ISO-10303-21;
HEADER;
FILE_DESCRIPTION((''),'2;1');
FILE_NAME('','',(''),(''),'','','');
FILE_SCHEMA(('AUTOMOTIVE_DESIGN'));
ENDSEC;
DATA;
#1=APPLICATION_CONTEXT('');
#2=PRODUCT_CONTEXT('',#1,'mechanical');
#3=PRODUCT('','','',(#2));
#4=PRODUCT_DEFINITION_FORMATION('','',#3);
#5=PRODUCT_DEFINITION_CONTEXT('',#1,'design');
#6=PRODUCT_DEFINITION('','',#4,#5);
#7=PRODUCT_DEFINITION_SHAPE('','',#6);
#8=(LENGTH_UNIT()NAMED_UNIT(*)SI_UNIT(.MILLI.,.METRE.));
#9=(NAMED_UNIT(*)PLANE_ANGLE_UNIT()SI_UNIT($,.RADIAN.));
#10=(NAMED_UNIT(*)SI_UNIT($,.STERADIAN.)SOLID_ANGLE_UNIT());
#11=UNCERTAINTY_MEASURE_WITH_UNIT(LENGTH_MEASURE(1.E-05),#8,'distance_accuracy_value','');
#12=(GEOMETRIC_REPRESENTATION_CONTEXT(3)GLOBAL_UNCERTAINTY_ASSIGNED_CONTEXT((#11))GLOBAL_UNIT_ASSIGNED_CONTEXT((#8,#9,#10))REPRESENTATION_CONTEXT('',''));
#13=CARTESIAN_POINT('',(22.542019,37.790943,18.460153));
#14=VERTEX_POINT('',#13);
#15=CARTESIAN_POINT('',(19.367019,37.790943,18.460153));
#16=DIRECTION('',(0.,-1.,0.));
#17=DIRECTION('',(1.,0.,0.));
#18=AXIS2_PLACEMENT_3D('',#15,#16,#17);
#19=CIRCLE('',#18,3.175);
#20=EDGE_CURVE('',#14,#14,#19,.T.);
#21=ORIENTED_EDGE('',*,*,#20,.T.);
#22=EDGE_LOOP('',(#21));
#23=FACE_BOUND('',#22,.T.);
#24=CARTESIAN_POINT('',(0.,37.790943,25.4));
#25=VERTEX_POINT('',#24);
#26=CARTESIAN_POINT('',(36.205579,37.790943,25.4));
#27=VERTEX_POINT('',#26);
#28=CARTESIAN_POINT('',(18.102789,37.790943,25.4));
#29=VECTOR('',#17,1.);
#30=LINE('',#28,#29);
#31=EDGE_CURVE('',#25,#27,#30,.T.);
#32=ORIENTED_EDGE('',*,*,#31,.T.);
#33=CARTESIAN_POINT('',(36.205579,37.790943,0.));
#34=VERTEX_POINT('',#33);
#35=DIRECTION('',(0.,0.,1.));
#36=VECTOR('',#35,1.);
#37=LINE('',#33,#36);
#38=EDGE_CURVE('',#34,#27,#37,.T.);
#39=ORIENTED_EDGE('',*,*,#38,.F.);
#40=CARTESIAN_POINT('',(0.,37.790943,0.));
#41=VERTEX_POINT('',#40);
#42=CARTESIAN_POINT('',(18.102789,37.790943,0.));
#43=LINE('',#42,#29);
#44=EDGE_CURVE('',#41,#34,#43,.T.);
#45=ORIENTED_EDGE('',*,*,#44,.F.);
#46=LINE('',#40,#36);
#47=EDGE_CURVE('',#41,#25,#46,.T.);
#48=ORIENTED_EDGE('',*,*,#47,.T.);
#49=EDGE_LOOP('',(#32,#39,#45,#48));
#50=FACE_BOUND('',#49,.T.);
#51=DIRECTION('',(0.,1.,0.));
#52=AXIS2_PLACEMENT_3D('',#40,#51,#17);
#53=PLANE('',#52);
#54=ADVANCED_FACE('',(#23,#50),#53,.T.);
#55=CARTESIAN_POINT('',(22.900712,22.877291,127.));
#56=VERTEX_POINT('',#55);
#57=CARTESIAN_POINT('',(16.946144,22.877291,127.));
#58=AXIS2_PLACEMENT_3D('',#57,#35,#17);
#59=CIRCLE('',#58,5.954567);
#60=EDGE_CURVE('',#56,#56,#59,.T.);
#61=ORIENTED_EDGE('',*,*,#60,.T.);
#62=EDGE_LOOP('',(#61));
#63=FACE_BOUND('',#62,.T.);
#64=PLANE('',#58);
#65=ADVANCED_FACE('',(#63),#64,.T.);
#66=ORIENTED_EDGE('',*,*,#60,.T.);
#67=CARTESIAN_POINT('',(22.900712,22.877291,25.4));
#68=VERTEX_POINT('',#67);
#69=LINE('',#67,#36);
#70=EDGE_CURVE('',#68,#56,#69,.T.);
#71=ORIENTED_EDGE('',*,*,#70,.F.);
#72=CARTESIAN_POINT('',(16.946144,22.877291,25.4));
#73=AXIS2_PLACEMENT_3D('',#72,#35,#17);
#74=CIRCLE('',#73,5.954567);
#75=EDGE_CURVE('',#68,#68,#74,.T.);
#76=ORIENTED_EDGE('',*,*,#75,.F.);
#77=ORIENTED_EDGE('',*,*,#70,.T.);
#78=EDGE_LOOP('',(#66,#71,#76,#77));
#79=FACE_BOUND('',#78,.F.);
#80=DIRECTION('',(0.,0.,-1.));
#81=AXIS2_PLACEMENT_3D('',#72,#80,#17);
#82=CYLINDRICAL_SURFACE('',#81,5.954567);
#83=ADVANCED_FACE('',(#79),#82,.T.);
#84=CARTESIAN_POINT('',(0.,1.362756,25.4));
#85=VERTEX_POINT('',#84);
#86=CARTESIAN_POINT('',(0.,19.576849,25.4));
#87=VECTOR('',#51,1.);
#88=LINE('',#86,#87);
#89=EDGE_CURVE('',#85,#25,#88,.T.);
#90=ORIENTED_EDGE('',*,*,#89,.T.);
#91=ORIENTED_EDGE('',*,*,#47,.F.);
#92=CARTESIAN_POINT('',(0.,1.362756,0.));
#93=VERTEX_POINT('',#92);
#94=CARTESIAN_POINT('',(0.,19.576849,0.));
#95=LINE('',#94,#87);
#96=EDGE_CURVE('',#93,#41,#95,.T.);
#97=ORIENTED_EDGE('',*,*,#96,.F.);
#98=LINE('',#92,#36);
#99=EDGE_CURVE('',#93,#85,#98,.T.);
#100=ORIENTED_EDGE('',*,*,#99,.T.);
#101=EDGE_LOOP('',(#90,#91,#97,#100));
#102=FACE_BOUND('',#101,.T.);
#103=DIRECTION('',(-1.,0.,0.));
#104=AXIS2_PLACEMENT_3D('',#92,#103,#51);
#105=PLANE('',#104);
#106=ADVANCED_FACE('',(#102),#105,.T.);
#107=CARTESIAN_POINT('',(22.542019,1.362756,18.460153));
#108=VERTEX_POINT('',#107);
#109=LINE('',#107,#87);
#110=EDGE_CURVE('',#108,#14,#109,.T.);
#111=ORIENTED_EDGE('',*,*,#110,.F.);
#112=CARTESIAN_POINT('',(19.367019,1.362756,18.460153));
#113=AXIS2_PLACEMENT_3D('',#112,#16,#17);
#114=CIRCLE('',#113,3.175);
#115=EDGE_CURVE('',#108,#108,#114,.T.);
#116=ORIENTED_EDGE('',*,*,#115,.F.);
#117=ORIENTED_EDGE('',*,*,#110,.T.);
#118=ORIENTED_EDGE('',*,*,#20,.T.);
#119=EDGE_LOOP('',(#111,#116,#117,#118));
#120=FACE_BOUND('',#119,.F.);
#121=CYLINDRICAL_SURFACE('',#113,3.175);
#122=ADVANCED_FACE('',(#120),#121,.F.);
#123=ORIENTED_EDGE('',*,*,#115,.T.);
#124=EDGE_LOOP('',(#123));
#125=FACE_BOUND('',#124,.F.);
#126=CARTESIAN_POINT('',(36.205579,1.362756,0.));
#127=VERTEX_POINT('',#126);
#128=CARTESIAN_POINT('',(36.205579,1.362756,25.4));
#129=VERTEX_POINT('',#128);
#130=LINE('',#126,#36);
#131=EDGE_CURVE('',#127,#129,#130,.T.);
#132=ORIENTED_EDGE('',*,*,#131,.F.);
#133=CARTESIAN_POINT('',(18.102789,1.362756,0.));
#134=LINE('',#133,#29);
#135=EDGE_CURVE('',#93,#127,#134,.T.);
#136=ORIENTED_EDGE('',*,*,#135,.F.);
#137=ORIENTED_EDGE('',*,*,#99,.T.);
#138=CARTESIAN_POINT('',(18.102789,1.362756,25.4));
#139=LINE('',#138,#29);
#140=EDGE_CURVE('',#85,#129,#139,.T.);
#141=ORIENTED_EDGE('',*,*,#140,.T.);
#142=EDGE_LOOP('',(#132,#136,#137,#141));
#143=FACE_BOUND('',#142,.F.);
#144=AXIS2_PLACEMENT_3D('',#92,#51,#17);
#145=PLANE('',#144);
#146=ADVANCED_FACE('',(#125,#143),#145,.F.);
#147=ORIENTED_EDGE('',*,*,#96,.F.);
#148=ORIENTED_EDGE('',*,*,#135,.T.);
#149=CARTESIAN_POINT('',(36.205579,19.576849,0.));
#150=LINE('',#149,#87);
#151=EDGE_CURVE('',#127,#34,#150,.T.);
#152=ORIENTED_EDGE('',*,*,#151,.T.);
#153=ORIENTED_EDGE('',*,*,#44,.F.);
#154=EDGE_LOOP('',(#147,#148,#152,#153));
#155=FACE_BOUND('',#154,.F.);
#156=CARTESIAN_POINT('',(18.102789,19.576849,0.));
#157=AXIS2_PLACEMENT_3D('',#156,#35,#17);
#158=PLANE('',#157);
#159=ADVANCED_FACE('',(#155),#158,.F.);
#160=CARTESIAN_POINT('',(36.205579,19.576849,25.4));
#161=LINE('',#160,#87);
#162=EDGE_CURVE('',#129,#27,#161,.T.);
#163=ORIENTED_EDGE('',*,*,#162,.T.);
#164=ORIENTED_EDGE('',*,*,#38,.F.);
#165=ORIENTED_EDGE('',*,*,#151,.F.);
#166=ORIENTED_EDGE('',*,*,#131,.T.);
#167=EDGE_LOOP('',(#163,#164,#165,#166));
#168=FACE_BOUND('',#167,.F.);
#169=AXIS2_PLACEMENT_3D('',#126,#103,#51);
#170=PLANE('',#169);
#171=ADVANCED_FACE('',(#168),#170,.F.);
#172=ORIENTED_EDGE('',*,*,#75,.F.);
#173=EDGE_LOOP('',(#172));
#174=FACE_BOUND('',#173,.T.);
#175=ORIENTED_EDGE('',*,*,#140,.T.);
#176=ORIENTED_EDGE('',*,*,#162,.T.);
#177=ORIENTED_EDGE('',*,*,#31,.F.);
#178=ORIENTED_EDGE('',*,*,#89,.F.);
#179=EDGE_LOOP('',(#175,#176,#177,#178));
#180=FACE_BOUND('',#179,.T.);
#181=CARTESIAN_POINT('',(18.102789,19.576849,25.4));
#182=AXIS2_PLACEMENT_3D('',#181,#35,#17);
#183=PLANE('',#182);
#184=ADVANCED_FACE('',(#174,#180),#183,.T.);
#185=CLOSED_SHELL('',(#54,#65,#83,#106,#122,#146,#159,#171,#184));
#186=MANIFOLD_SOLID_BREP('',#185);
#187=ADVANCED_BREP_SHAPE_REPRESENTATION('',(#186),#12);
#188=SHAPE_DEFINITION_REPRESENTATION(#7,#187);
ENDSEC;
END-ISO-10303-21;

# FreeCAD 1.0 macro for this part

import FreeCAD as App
import Part
import Sketcher

V = App.Vector
Q = App.Units.Quantity

doc = App.newDocument("Part")
body = doc.addObject("PartDesign::Body", "Body")

# Sketch on XY plane
sketch1 = body.newObject("Sketcher::SketchObject", "Sketch")
sketch1.AttachmentSupport = (doc.getObject("XY_Plane"), [""])
sketch1.MapMode = "FlatFace"
sketch1.addGeometry([
    Part.LineSegment(V(0, 38, 0), V(0, 1, 0)),
    Part.LineSegment(V(0, 1, 0), V(36, 1, 0)),
    Part.LineSegment(V(36, 1, 0), V(36, 38, 0)),
    Part.LineSegment(V(36, 38, 0), V(0, 38, 0)),
], False)
sketch1.addConstraint([
    Sketcher.Constraint("Coincident", 0, 2, 1, 1),
    Sketcher.Constraint("Coincident", 1, 2, 2, 1),
    Sketcher.Constraint("Coincident", 2, 2, 3, 1),
    Sketcher.Constraint("Coincident", 3, 2, 0, 1),
    Sketcher.Constraint("Vertical", 0),
    Sketcher.Constraint("Horizontal", 1),
    Sketcher.Constraint("Vertical", 2),
    Sketcher.Constraint("Horizontal", 3),
    Sketcher.Constraint("PointOnObject", 0, 2, -2),
    Sketcher.Constraint("DistanceX", 1, 1, 1, 2, Q("36.205579 mm")),
    Sketcher.Constraint("DistanceY", 0, 2, 0, 1, Q("36.428187 mm")),
    Sketcher.Constraint("DistanceY", -1, 1, 0, 2, Q("1.362756 mm")),
])
pad1 = body.newObject("PartDesign::Pad", "Pad")
pad1.Profile = sketch1
pad1.Length = Q("1 in")

# Sketch on XY plane
sketch2 = body.newObject("Sketcher::SketchObject", "Sketch001")
sketch2.AttachmentSupport = (doc.getObject("XY_Plane"), [""])
sketch2.MapMode = "FlatFace"
sketch2.AttachmentOffset = App.Placement(V(0, 0, 1 * 25.4), App.Rotation())
sketch2.addGeometry(Part.Circle(V(17, 23, 0), V(0, 0, 1), 6), False)
sketch2.addConstraint([
    Sketcher.Constraint("Diameter", 0, Q("11.909134 mm")),
    Sketcher.Constraint("DistanceY", -1, 1, 0, 3, Q("22.877291 mm")),
    Sketcher.Constraint("DistanceX", -1, 1, 0, 3, Q("16.946144 mm")),
])
pad2 = body.newObject("PartDesign::Pad", "Pad001")
pad2.Profile = sketch2
pad2.Length = Q("4 in")

# Sketch on XZ plane
sketch3 = body.newObject("Sketcher::SketchObject", "Sketch002")
sketch3.AttachmentSupport = (doc.getObject("XZ_Plane"), [""])
sketch3.MapMode = "FlatFace"
sketch3.AttachmentOffset = App.Placement(V(0, 0, -1.362756), App.Rotation())
sketch3.addGeometry(Part.Circle(V(19.4, 18.5, 0), V(0, 0, 1), 3.2), False)
sketch3.addConstraint([
    Sketcher.Constraint("Diameter", 0, Q("0.25 in")),
    Sketcher.Constraint("DistanceX", -1, 1, 0, 3, Q("19.367019 mm")),
    Sketcher.Constraint("DistanceY", -1, 1, 0, 3, Q("18.460153 mm")),
])
pocket1 = body.newObject("PartDesign::Pocket", "Pocket")
pocket1.Profile = sketch3
pocket1.Type = "ThroughAll"

doc.recompute()
